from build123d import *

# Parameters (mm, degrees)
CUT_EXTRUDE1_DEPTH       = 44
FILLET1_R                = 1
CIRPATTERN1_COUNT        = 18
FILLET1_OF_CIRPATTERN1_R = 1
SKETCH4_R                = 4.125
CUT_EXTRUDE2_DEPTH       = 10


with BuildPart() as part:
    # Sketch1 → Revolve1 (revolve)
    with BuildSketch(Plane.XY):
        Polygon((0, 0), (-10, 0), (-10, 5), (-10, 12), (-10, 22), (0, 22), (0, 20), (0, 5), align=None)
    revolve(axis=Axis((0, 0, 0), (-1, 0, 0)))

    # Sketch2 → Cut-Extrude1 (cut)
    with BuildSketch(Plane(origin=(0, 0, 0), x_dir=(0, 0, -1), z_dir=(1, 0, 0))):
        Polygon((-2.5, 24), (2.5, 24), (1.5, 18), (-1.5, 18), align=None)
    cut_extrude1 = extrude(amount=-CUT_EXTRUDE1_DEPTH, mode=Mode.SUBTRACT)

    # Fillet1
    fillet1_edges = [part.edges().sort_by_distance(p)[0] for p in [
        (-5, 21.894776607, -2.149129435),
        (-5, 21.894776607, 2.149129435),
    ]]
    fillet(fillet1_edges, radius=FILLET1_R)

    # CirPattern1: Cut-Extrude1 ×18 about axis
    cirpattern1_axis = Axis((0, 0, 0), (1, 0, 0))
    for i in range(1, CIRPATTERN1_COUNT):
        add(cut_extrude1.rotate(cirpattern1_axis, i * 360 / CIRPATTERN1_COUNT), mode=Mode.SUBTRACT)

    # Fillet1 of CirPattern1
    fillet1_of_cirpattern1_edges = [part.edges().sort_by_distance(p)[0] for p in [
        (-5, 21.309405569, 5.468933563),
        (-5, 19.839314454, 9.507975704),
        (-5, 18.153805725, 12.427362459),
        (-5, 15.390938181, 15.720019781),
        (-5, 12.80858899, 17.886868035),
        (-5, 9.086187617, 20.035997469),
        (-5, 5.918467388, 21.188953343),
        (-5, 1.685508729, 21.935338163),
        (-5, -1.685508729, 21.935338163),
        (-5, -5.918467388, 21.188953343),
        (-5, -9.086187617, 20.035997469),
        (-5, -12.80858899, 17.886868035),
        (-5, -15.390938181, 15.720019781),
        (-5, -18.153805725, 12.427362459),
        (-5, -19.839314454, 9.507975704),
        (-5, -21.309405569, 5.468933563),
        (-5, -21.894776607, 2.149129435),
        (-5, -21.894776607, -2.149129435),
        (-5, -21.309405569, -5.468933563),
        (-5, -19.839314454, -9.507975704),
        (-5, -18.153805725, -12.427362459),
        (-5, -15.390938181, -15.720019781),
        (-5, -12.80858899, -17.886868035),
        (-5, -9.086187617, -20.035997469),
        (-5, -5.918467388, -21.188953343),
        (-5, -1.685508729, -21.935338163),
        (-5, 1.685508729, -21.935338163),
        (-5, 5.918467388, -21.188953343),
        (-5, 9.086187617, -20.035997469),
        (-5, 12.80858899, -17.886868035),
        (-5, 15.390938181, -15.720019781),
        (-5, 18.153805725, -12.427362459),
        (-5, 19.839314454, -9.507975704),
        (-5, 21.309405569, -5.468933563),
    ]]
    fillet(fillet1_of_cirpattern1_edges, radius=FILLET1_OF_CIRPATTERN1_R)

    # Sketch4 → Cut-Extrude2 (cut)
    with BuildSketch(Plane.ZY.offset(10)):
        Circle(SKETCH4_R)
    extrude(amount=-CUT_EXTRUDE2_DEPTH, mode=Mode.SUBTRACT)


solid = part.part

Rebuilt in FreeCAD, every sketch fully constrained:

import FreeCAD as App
import Part
import Sketcher
from FreeCAD import Vector
Q = App.Units.Quantity


def edges_at(feature, points):
    """Names of the edges that pass closest to the given points."""
    edges = feature.Shape.Edges
    near = lambda p: min(range(len(edges)), key=lambda i: edges[i].distToShape(Part.Vertex(*p))[0])
    return sorted({f"Edge{near(p) + 1}" for p in points})

doc = App.newDocument("Part")
body = doc.addObject("PartDesign::Body", "Body")

# Sketch on XY plane
sketch1 = doc.addObject("Sketcher::SketchObject", "Sketch")
body.addObject(sketch1)
sketch1.AttachmentSupport = (doc.XY_Plane, [""])
sketch1.MapMode = "FlatFace"
sketch1.addGeometry([
    Part.LineSegment(Vector(-10, 0, 0), Vector(0, 0, 0)),
    Part.LineSegment(Vector(0, 0, 0), Vector(0, 22, 0)),
    Part.LineSegment(Vector(0, 22, 0), Vector(-10, 22, 0)),
    Part.LineSegment(Vector(-10, 22, 0), Vector(-10, 0, 0)),
], False)
sketch1.addConstraint([
    Sketcher.Constraint("Coincident", 0, 2, 1, 1),
    Sketcher.Constraint("Coincident", 1, 2, 2, 1),
    Sketcher.Constraint("Coincident", 2, 2, 3, 1),
    Sketcher.Constraint("Coincident", 3, 2, 0, 1),
    Sketcher.Constraint("Horizontal", 0),
    Sketcher.Constraint("Vertical", 1),
    Sketcher.Constraint("Horizontal", 2),
    Sketcher.Constraint("Vertical", 3),
    Sketcher.Constraint("Coincident", 0, 2, -1, 1),
    Sketcher.Constraint("DistanceX", 0, 1, 0, 2, Q("10 mm")),
    Sketcher.Constraint("DistanceY", 1, 1, 1, 2, Q("22 mm")),
])
revolution = doc.addObject("PartDesign::Revolution", "Revolution")
body.addObject(revolution)
revolution.Profile = sketch1
revolution.ReferenceAxis = (sketch1, ["H_Axis"])
revolution.Angle = 360

# Sketch on YZ plane
sketch2 = doc.addObject("Sketcher::SketchObject", "Sketch001")
body.addObject(sketch2)
sketch2.AttachmentSupport = (doc.YZ_Plane, [""])
sketch2.MapMode = "FlatFace"
sketch2.addGeometry([
    Part.LineSegment(Vector(24, -2.5, 0), Vector(24, 2.5, 0)),
    Part.LineSegment(Vector(24, 2.5, 0), Vector(18, 1.5, 0)),
    Part.LineSegment(Vector(18, 1.5, 0), Vector(18, -1.5, 0)),
    Part.LineSegment(Vector(18, -1.5, 0), Vector(24, -2.5, 0)),
], False)
sketch2.addConstraint([
    Sketcher.Constraint("Coincident", 0, 2, 1, 1),
    Sketcher.Constraint("Coincident", 1, 2, 2, 1),
    Sketcher.Constraint("Coincident", 2, 2, 3, 1),
    Sketcher.Constraint("Coincident", 3, 2, 0, 1),
    Sketcher.Constraint("Vertical", 0),
    Sketcher.Constraint("Vertical", 2),
    Sketcher.Constraint("Equal", 1, 3),
    Sketcher.Constraint("DistanceY", 0, 1, 0, 2, Q("5 mm")),
    Sketcher.Constraint("DistanceY", 2, 2, 2, 1, Q("3 mm")),
    Sketcher.Constraint("DistanceX", -1, 1, 0, 2, Q("24 mm")),
    Sketcher.Constraint("DistanceX", -1, 1, 1, 2, Q("18 mm")),
    Sketcher.Constraint("DistanceY", -1, 1, 0, 2, Q("2.5 mm")),
])
pocket1 = doc.addObject("PartDesign::Pocket", "Pocket")
body.addObject(pocket1)
pocket1.Profile = sketch2
pocket1.Length = 44
doc.recompute()

fillet = doc.addObject("PartDesign::Fillet", "Fillet")
body.addObject(fillet)
fillet.Base = (pocket1, edges_at(pocket1, [(-5, 21.895, -2.149), (-5, 21.895, 2.149)]))
fillet.Radius = 1
doc.recompute()

polarpattern = doc.addObject("PartDesign::PolarPattern", "PolarPattern")
body.addObject(polarpattern)
polarpattern.Originals = [pocket1]
polarpattern.Axis = (doc.X_Axis, [""])
polarpattern.Angle = 360
polarpattern.Occurrences = 18
body.Tip = polarpattern
doc.recompute()

fillet2 = doc.addObject("PartDesign::Fillet", "Fillet001")
body.addObject(fillet2)
fillet2.Base = (polarpattern, edges_at(polarpattern, [
    (-5, 21.309, 5.469),
    (-5, 19.839, 9.508),
    (-5, 18.154, 12.427),
    (-5, 15.391, 15.72),
    (-5, 12.809, 17.887),
    (-5, 9.086, 20.036),
    (-5, 5.918, 21.189),
    (-5, 1.686, 21.935),
    (-5, -1.686, 21.935),
    (-5, -5.918, 21.189),
    (-5, -9.086, 20.036),
    (-5, -12.809, 17.887),
    (-5, -15.391, 15.72),
    (-5, -18.154, 12.427),
    (-5, -19.839, 9.508),
    (-5, -21.309, 5.469),
    (-5, -21.895, 2.149),
    (-5, -21.895, -2.149),
    (-5, -21.309, -5.469),
    (-5, -19.839, -9.508),
    (-5, -18.154, -12.427),
    (-5, -15.391, -15.72),
    (-5, -12.809, -17.887),
    (-5, -9.086, -20.036),
    (-5, -5.918, -21.189),
    (-5, -1.686, -21.935),
    (-5, 1.686, -21.935),
    (-5, 5.918, -21.189),
    (-5, 9.086, -20.036),
    (-5, 12.809, -17.887),
    (-5, 15.391, -15.72),
    (-5, 18.154, -12.427),
    (-5, 19.839, -9.508),
    (-5, 21.309, -5.469),
]))
fillet2.Radius = 1

# Sketch on YZ plane
sketch3 = doc.addObject("Sketcher::SketchObject", "Sketch002")
body.addObject(sketch3)
sketch3.AttachmentSupport = (doc.YZ_Plane, [""])
sketch3.MapMode = "FlatFace"
sketch3.AttachmentOffset = App.Placement(Vector(0, 0, -10), App.Rotation())
sketch3.addGeometry(Part.Circle(Vector(0, 0, 0), Vector(0, 0, 1), 4.125), False)
sketch3.addConstraint([
    Sketcher.Constraint("Coincident", 0, 3, -1, 1),
    Sketcher.Constraint("Diameter", 0, Q("8.25 mm")),
])
pocket2 = doc.addObject("PartDesign::Pocket", "Pocket001")
body.addObject(pocket2)
pocket2.Profile = sketch3
pocket2.Length = 10
pocket2.Reversed = True

doc.recompute()
